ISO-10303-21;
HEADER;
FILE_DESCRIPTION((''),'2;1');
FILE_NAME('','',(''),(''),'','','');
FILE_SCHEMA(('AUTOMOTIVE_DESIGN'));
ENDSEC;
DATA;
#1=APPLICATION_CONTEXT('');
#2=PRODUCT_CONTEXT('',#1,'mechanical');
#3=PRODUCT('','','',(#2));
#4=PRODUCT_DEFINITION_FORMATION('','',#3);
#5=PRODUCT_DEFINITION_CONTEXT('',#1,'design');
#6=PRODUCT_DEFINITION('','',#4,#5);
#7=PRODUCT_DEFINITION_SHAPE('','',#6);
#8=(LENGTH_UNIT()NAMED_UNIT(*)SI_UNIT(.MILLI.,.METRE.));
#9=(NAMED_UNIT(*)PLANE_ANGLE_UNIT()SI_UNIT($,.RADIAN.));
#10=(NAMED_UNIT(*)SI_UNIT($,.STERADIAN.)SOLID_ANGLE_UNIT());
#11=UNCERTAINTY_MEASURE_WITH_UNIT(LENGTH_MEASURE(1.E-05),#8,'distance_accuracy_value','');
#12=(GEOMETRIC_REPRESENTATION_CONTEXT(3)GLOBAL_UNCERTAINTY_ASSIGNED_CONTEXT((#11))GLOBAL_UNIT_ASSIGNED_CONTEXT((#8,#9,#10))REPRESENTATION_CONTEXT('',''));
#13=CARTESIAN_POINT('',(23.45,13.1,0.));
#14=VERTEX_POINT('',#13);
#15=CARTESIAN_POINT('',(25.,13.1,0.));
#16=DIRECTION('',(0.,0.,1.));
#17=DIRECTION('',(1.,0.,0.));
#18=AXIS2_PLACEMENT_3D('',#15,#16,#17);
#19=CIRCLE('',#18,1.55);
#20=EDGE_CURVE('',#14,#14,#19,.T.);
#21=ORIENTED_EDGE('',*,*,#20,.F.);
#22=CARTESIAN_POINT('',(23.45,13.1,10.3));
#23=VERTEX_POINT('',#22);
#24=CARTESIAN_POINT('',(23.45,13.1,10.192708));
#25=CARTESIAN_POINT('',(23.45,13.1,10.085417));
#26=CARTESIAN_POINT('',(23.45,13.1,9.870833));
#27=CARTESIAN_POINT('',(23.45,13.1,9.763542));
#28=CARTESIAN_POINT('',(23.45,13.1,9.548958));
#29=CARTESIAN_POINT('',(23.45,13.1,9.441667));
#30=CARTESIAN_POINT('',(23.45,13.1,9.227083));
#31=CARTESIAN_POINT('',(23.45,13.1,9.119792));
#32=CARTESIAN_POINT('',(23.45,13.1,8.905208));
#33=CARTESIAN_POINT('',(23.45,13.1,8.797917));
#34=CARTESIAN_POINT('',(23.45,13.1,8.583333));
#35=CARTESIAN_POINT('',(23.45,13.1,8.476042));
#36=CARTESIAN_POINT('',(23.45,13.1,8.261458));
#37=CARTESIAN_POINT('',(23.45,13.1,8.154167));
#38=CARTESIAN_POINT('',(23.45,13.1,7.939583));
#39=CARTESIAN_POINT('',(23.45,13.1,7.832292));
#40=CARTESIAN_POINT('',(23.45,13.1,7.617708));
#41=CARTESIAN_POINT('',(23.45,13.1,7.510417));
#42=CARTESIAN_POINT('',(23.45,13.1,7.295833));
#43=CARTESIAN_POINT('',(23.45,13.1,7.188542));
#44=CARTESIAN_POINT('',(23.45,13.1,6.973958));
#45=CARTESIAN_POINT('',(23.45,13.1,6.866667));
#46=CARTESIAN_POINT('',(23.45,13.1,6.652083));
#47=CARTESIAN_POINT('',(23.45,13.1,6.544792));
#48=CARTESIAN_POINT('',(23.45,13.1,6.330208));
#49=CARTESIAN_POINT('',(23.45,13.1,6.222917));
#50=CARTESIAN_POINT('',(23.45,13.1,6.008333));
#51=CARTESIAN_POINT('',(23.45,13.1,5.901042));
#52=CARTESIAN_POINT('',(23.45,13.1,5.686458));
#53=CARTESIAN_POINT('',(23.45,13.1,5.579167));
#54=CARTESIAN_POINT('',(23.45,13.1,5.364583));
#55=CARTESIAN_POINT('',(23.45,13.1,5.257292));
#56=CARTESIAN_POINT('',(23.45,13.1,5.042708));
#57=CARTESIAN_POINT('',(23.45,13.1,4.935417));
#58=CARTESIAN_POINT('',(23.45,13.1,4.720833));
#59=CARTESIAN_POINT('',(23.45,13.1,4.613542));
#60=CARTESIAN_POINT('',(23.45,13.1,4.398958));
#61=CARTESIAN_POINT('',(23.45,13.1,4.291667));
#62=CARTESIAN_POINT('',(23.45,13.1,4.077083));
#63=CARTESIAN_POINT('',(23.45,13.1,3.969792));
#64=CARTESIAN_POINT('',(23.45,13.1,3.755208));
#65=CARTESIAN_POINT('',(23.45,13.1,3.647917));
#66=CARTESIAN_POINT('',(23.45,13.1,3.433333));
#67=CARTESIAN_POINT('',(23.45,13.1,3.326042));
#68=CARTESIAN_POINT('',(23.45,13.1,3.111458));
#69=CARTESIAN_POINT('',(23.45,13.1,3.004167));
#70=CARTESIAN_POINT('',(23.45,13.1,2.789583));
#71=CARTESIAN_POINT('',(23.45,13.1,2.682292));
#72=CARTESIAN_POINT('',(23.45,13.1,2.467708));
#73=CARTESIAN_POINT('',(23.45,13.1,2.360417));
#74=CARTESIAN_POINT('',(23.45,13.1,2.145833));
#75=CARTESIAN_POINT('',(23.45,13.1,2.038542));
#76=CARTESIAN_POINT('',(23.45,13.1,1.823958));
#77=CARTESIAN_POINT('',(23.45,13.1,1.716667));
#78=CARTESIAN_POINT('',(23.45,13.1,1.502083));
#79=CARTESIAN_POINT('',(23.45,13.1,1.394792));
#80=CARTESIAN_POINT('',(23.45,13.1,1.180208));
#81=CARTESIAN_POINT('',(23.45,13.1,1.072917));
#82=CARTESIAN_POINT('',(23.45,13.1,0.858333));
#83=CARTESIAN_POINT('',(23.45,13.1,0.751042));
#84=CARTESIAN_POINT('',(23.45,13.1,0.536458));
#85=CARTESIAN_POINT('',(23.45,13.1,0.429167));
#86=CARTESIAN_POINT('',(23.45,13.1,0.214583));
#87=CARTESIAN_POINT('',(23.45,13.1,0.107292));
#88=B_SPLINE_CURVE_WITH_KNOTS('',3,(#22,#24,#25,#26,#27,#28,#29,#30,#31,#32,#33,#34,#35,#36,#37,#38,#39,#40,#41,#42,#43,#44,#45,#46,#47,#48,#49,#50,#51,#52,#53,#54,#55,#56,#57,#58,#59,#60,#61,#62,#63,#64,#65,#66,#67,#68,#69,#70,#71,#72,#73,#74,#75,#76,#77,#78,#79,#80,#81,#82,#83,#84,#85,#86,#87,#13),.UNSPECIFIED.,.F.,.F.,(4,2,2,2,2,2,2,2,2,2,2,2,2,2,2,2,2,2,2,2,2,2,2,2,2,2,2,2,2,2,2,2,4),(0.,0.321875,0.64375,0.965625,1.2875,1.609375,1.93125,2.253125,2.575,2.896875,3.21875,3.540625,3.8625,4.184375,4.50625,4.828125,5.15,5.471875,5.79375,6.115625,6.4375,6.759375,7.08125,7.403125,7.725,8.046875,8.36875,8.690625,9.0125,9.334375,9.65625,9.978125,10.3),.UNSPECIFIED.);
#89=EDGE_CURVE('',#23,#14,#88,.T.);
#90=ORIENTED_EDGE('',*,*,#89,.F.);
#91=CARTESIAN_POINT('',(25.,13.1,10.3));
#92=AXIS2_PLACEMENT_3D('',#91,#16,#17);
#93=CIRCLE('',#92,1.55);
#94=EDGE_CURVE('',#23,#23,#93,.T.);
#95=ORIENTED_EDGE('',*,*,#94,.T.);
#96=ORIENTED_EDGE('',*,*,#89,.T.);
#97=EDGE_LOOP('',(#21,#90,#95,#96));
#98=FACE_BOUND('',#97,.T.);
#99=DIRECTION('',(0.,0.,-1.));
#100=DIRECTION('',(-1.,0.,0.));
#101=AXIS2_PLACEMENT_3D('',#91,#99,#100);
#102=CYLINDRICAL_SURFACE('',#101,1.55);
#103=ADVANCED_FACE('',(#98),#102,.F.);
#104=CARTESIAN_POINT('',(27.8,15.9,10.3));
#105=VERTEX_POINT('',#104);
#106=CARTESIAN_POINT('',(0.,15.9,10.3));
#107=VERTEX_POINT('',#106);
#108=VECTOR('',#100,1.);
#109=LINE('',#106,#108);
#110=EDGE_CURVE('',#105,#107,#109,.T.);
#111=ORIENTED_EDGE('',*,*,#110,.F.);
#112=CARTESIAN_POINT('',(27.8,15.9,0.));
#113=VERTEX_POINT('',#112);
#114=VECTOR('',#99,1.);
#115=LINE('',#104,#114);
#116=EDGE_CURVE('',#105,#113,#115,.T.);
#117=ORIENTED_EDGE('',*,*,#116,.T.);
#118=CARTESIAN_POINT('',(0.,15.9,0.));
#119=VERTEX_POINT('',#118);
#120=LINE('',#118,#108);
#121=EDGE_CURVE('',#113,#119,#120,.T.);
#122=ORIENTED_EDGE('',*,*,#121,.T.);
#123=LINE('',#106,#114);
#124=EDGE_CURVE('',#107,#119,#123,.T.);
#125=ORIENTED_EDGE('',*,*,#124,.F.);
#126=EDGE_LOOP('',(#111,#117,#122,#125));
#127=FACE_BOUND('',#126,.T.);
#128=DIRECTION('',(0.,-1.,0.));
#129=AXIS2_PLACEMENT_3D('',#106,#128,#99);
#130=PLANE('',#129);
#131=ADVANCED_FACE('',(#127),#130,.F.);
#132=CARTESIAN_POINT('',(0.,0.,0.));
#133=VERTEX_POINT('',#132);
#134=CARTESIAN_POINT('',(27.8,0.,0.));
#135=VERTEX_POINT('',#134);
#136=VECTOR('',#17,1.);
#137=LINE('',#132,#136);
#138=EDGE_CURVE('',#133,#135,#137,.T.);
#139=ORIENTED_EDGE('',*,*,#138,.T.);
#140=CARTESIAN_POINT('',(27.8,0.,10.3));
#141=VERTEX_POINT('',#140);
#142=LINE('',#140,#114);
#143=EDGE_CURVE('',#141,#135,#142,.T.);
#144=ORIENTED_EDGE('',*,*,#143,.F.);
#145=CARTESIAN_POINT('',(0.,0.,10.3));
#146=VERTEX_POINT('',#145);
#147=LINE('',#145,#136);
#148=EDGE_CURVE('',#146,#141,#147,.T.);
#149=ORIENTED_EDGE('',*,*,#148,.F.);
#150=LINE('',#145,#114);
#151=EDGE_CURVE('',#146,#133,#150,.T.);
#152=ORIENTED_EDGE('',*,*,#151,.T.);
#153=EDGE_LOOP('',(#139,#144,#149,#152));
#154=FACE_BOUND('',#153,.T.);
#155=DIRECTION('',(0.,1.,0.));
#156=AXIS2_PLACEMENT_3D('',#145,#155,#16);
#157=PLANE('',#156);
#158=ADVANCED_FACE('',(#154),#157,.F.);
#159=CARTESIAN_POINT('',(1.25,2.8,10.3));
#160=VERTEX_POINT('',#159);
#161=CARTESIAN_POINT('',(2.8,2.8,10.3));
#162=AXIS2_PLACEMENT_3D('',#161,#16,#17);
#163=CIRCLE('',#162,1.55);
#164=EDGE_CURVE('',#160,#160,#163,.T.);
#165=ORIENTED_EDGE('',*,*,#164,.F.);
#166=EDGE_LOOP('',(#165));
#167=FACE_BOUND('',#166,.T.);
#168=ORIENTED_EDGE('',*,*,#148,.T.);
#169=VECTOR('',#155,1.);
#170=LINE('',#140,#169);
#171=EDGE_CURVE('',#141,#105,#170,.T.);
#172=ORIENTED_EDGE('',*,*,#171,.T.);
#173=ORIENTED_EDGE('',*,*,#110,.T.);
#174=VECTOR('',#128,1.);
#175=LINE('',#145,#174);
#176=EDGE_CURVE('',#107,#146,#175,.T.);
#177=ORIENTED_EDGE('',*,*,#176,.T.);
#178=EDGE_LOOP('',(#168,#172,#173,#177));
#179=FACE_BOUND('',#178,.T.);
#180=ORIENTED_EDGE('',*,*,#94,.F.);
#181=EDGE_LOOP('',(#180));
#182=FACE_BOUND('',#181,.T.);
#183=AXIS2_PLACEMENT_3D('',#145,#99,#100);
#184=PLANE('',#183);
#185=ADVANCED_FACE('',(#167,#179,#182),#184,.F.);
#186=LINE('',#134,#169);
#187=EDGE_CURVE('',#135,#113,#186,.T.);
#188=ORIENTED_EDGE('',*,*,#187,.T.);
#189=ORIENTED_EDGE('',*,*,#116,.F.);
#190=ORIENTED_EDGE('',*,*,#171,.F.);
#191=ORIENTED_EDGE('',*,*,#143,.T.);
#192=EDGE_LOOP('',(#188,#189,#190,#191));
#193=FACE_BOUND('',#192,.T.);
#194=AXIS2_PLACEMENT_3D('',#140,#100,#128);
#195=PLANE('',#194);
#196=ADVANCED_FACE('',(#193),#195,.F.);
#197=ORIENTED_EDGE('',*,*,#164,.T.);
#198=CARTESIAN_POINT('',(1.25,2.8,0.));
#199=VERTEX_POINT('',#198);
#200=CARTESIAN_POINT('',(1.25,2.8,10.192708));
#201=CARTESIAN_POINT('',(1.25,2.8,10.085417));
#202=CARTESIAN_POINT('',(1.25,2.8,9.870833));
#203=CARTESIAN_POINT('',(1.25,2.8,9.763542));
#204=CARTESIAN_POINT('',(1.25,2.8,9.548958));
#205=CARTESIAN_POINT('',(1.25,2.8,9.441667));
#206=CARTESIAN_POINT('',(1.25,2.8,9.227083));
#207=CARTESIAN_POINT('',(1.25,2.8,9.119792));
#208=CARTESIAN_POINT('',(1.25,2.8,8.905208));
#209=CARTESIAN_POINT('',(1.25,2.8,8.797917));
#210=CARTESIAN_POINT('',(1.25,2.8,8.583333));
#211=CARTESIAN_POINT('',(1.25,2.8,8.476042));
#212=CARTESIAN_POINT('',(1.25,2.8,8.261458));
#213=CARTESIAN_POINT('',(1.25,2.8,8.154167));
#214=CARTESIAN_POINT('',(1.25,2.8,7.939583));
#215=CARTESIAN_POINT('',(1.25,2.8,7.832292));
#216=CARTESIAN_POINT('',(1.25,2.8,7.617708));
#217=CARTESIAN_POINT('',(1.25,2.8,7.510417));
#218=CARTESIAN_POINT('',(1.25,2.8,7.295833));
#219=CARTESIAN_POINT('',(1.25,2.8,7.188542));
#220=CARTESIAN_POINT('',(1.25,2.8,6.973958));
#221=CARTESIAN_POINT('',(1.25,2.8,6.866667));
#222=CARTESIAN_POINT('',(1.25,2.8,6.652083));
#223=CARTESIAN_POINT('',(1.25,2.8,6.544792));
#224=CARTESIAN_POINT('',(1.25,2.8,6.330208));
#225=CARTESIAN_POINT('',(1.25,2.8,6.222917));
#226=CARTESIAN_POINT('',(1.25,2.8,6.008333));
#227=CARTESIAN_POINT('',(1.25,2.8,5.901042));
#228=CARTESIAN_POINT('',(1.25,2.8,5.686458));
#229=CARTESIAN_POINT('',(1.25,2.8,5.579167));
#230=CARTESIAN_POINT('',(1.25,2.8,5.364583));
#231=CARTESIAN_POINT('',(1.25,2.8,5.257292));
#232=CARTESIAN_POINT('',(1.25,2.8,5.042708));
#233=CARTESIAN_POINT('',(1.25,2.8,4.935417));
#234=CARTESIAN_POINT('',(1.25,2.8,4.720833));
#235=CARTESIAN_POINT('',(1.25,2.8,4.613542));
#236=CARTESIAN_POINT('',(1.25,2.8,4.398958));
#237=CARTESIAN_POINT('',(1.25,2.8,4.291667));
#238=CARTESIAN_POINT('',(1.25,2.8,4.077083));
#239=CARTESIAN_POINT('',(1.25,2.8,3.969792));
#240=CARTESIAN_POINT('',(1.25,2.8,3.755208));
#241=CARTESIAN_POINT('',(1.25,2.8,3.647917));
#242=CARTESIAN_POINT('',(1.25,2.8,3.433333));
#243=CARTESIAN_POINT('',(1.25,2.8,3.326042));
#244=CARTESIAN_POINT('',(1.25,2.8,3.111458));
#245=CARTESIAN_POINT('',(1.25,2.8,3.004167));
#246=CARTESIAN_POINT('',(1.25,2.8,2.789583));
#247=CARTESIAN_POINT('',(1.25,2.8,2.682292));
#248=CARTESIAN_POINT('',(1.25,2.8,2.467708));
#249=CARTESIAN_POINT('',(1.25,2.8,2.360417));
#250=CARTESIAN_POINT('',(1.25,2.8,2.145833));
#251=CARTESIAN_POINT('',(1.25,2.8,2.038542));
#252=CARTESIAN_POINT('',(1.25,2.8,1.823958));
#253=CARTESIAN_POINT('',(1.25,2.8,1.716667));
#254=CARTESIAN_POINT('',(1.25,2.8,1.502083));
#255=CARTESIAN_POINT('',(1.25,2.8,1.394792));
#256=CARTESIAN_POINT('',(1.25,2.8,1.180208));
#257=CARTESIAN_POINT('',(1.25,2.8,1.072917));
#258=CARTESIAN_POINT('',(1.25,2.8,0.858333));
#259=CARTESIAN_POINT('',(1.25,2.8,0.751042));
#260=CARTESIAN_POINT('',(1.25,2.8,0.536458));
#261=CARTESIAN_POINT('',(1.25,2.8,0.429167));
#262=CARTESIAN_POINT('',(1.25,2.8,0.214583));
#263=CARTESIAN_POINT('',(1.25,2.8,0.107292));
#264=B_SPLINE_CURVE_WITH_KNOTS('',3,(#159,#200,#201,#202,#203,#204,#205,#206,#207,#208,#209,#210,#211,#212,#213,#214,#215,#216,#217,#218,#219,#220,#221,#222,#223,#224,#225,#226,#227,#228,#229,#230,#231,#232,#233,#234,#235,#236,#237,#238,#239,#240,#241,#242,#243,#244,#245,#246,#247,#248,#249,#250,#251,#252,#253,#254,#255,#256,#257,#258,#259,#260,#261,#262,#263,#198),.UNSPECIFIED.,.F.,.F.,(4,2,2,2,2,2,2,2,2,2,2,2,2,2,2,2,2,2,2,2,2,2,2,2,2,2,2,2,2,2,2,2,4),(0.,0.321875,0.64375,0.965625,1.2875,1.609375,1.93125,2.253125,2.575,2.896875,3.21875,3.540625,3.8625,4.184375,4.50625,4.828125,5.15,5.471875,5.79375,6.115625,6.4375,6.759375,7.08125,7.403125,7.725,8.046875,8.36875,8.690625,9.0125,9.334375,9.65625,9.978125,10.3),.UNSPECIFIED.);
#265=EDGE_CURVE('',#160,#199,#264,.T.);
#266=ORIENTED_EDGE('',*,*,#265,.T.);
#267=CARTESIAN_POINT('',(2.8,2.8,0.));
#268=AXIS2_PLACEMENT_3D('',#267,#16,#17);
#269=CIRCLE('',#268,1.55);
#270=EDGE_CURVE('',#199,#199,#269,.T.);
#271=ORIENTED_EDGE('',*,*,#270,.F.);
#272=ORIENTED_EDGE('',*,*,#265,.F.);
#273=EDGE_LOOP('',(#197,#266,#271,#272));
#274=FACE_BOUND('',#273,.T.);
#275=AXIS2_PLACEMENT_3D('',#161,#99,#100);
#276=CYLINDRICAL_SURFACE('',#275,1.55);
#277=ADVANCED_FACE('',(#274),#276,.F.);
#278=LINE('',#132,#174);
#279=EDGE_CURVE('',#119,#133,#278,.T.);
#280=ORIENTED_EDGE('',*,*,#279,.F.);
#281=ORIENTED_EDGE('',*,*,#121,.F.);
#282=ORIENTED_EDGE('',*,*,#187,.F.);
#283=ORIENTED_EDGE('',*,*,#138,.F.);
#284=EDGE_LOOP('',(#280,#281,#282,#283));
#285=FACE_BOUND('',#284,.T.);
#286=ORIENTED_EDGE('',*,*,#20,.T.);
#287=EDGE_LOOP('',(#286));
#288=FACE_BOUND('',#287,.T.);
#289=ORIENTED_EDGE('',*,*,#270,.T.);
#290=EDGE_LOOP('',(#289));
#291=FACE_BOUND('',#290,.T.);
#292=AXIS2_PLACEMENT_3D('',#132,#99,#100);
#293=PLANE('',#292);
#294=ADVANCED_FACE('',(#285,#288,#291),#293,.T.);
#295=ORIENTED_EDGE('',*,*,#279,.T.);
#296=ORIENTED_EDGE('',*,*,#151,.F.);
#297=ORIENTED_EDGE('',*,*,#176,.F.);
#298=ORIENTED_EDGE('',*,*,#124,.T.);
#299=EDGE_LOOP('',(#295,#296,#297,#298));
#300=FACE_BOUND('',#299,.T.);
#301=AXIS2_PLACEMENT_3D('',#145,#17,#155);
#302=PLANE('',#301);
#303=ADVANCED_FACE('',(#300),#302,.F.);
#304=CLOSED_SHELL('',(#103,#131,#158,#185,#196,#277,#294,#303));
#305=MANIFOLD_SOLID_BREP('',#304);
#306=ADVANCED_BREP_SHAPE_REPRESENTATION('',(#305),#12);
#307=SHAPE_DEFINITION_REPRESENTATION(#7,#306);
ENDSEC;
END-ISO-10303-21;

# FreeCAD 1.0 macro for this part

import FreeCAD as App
import Part
import Sketcher

V = App.Vector

doc = App.newDocument("Part")
body = doc.addObject("PartDesign::Body", "Body")

sketch1 = body.newObject("Sketcher::SketchObject", "Sketch")
sketch1.AttachmentSupport = (doc.getObject("XY_Plane"), [""])
sketch1.MapMode = "FlatFace"
sketch1.addGeometry(Part.LineSegment(V(0, 15.9, 0), V(0, 0, 0)), False)
sketch1.addGeometry(Part.LineSegment(V(0, 0, 0), V(27.8, 0, 0)), False)
sketch1.addGeometry(Part.LineSegment(V(27.8, 0, 0), V(27.8, 15.9, 0)), False)
sketch1.addGeometry(Part.LineSegment(V(27.8, 15.9, 0), V(0, 15.9, 0)), False)
sketch1.addGeometry(Part.Circle(V(2.8, 2.8, 0), V(0, 0, 1), 1.6), False)
sketch1.addGeometry(Part.Circle(V(25, 13.1, 0), V(0, 0, 1), 1.6), False)
sketch1.addConstraint(Sketcher.Constraint("Coincident", 0, 2, 1, 1))
sketch1.addConstraint(Sketcher.Constraint("Coincident", 1, 2, 2, 1))
sketch1.addConstraint(Sketcher.Constraint("Coincident", 2, 2, 3, 1))
sketch1.addConstraint(Sketcher.Constraint("Coincident", 3, 2, 0, 1))
sketch1.addConstraint(Sketcher.Constraint("Vertical", 0))
sketch1.addConstraint(Sketcher.Constraint("Horizontal", 1))
sketch1.addConstraint(Sketcher.Constraint("Vertical", 2))
sketch1.addConstraint(Sketcher.Constraint("Horizontal", 3))
sketch1.addConstraint(Sketcher.Constraint("Coincident", 0, 2, -1, 1))
sketch1.addConstraint(Sketcher.Constraint("Equal", 4, 5))
sketch1.addConstraint(Sketcher.Constraint("Diameter", 4, 3.1))
sketch1.addConstraint(Sketcher.Constraint("DistanceX", 1, 1, 1, 2, 27.8))
sketch1.addConstraint(Sketcher.Constraint("DistanceY", 0, 2, 0, 1, 15.9))
sketch1.addConstraint(Sketcher.Constraint("DistanceX", -1, 1, 5, 3, 25.0))
sketch1.addConstraint(Sketcher.Constraint("DistanceX", 4, 3, 1, 2, 25.0))
sketch1.addConstraint(Sketcher.Constraint("DistanceY", -1, 1, 4, 3, 2.8))
sketch1.addConstraint(Sketcher.Constraint("DistanceY", -1, 1, 5, 3, 13.1))
pad1 = body.newObject("PartDesign::Pad", "Pad")
pad1.Profile = sketch1
pad1.Length = 10.3

doc.recompute()
